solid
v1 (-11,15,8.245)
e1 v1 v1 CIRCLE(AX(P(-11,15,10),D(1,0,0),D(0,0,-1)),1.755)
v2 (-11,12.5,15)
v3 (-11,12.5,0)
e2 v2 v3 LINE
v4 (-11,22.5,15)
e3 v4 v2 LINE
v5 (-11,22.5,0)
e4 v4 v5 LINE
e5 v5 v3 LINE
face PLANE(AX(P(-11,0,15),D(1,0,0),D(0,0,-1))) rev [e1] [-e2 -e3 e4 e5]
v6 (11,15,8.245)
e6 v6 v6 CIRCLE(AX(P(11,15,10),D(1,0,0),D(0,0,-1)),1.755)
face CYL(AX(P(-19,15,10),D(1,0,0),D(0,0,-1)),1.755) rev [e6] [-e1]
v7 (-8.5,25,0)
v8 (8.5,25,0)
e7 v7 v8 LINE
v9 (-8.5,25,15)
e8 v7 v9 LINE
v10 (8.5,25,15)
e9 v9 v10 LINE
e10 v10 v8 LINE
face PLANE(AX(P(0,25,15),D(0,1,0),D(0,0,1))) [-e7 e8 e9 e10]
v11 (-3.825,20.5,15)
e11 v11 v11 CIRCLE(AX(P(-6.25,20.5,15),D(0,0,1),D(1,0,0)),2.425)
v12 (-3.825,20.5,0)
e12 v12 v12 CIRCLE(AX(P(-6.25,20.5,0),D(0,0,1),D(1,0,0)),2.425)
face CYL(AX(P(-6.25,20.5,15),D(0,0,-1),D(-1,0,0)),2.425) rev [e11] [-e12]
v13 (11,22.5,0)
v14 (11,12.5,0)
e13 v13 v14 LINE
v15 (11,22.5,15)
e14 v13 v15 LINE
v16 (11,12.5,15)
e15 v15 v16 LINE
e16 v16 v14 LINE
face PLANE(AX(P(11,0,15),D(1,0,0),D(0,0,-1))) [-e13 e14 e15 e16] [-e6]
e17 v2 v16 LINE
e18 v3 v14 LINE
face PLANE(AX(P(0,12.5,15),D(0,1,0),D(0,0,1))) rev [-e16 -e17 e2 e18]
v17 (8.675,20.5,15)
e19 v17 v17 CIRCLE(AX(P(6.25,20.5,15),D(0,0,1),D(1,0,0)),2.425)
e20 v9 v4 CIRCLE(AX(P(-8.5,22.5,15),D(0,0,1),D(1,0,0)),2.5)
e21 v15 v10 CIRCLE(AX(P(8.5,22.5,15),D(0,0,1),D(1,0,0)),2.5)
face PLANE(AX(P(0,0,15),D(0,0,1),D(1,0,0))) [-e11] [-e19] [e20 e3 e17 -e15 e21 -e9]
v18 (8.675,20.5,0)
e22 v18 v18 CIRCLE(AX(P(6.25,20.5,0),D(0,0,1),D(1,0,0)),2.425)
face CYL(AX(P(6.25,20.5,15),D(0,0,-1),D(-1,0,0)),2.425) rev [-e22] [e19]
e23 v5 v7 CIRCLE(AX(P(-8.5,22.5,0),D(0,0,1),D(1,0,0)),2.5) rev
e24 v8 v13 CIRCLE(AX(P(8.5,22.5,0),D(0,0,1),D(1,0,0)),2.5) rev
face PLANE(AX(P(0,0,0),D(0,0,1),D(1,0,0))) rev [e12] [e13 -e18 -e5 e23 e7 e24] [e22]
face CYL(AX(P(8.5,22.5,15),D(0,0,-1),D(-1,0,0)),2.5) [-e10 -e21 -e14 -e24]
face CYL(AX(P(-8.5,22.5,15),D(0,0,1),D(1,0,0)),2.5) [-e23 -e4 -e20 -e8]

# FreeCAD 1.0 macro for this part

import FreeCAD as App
import Part
import Sketcher

V = App.Vector


def edges_at(feature, points):
    """Names of the edges that pass closest to the given points."""
    edges = feature.Shape.Edges
    near = lambda p: min(range(len(edges)), key=lambda i: edges[i].distToShape(Part.Vertex(*p))[0])
    return sorted({f"Edge{near(p) + 1}" for p in points})


def add_polygon(sketch, points):
    """Adds a closed chain of lines whose ends are joined by coincident constraints."""
    first, n = sketch.GeometryCount, len(points)
    for a, b in zip(points, points[1:] + points[:1]):
        sketch.addGeometry(Part.LineSegment(App.Vector(*a, 0), App.Vector(*b, 0)), False)
    for i in range(n):
        sketch.addConstraint(Sketcher.Constraint("Coincident", first + i, 2, first + (i + 1) % n, 1))

doc = App.newDocument("Part")
params = doc.addObject("Spreadsheet::Sheet", "Params")
for row, (alias, value) in enumerate([
    ("sketch1_diameter", "4.85 mm"),
    ("sketch1_width", "22 mm"),
    ("sketch1_height", "12.5 mm"),
    ("pad1_length", "15 mm"),
    ("sketch2_diameter", "3.51 mm"),
    ("pocket1_length", "30 mm"),
    ("fillet_radius", "2.5 mm"),
], start=1):
    params.set(f"A{row}", alias)
    params.set(f"B{row}", "=" + value)
    params.setAlias(f"B{row}", alias)

body = doc.addObject("PartDesign::Body", "Body")

# Sketch on XY plane
sketch1 = doc.addObject("Sketcher::SketchObject", "Sketch")
body.addObject(sketch1)
sketch1.AttachmentSupport = (doc.XY_Plane, [""])
sketch1.MapMode = "FlatFace"
add_polygon(sketch1, [(-11, 25), (-11, 12.5), (11, 12.5), (11, 25)])  # lines 0-3
sketch1.addGeometry(Part.Circle(V(-6.2, 20.5, 0), V(0, 0, 1), 2.4), False)  # 4
sketch1.addGeometry(Part.Circle(V(6.2, 20.5, 0), V(0, 0, 1), 2.4), False)  # 5
sketch1.addConstraint(Sketcher.Constraint("Vertical", 0))
sketch1.addConstraint(Sketcher.Constraint("Horizontal", 1))
sketch1.addConstraint(Sketcher.Constraint("Vertical", 2))
sketch1.addConstraint(Sketcher.Constraint("Horizontal", 3))
sketch1.addConstraint(Sketcher.Constraint("Equal", 4, 5))
sketch1.addConstraint(Sketcher.Constraint("Symmetric", 4, 3, 5, 3, -2))
sketch1.addConstraint(Sketcher.Constraint("Diameter", 4, 4.85))
sketch1.addConstraint(Sketcher.Constraint("DistanceX", 1, 1, 1, 2, 22.0))
sketch1.addConstraint(Sketcher.Constraint("DistanceY", 0, 2, 0, 1, 12.5))
sketch1.addConstraint(Sketcher.Constraint("DistanceX", 0, 2, -1, 1, 11.0))
sketch1.addConstraint(Sketcher.Constraint("DistanceY", -1, 1, 2, 2, 25.0))
sketch1.addConstraint(Sketcher.Constraint("DistanceY", 0, 2, 4, 3, 8.0))
sketch1.addConstraint(Sketcher.Constraint("DistanceX", 4, 3, 5, 3, 12.5))
sketch1.setExpression("Constraints[10]", "Params.sketch1_diameter")
sketch1.setExpression("Constraints[11]", "Params.sketch1_width")
sketch1.setExpression("Constraints[12]", "Params.sketch1_height")
pad1 = doc.addObject("PartDesign::Pad", "Pad")
body.addObject(pad1)
pad1.Profile = sketch1
pad1.setExpression("Length", "Params.pad1_length")

# Sketch on YZ plane
sketch2 = doc.addObject("Sketcher::SketchObject", "Sketch001")
body.addObject(sketch2)
sketch2.AttachmentSupport = (doc.YZ_Plane, [""])
sketch2.MapMode = "FlatFace"
sketch2.AttachmentOffset = App.Placement(V(0, 0, 11), App.Rotation())
sketch2.addGeometry(Part.Circle(V(15, 10, 0), V(0, 0, 1), 1.8), False)
sketch2.addConstraint(Sketcher.Constraint("Diameter", 0, 3.51))
sketch2.addConstraint(Sketcher.Constraint("DistanceX", -1, 1, 0, 3, 15.0))
sketch2.addConstraint(Sketcher.Constraint("DistanceY", -1, 1, 0, 3, 10.0))
sketch2.setExpression("Constraints[0]", "Params.sketch2_diameter")
pocket1 = doc.addObject("PartDesign::Pocket", "Pocket")
body.addObject(pocket1)
pocket1.Profile = sketch2
pocket1.setExpression("Length", "Params.pocket1_length")
doc.recompute()

fillet = doc.addObject("PartDesign::Fillet", "Fillet")
body.addObject(fillet)
fillet.Base = (pocket1, edges_at(pocket1, [(-11, 25, 7.5), (11, 25, 7.5)]))
fillet.setExpression("Radius", "Params.fillet_radius")

doc.recompute()
